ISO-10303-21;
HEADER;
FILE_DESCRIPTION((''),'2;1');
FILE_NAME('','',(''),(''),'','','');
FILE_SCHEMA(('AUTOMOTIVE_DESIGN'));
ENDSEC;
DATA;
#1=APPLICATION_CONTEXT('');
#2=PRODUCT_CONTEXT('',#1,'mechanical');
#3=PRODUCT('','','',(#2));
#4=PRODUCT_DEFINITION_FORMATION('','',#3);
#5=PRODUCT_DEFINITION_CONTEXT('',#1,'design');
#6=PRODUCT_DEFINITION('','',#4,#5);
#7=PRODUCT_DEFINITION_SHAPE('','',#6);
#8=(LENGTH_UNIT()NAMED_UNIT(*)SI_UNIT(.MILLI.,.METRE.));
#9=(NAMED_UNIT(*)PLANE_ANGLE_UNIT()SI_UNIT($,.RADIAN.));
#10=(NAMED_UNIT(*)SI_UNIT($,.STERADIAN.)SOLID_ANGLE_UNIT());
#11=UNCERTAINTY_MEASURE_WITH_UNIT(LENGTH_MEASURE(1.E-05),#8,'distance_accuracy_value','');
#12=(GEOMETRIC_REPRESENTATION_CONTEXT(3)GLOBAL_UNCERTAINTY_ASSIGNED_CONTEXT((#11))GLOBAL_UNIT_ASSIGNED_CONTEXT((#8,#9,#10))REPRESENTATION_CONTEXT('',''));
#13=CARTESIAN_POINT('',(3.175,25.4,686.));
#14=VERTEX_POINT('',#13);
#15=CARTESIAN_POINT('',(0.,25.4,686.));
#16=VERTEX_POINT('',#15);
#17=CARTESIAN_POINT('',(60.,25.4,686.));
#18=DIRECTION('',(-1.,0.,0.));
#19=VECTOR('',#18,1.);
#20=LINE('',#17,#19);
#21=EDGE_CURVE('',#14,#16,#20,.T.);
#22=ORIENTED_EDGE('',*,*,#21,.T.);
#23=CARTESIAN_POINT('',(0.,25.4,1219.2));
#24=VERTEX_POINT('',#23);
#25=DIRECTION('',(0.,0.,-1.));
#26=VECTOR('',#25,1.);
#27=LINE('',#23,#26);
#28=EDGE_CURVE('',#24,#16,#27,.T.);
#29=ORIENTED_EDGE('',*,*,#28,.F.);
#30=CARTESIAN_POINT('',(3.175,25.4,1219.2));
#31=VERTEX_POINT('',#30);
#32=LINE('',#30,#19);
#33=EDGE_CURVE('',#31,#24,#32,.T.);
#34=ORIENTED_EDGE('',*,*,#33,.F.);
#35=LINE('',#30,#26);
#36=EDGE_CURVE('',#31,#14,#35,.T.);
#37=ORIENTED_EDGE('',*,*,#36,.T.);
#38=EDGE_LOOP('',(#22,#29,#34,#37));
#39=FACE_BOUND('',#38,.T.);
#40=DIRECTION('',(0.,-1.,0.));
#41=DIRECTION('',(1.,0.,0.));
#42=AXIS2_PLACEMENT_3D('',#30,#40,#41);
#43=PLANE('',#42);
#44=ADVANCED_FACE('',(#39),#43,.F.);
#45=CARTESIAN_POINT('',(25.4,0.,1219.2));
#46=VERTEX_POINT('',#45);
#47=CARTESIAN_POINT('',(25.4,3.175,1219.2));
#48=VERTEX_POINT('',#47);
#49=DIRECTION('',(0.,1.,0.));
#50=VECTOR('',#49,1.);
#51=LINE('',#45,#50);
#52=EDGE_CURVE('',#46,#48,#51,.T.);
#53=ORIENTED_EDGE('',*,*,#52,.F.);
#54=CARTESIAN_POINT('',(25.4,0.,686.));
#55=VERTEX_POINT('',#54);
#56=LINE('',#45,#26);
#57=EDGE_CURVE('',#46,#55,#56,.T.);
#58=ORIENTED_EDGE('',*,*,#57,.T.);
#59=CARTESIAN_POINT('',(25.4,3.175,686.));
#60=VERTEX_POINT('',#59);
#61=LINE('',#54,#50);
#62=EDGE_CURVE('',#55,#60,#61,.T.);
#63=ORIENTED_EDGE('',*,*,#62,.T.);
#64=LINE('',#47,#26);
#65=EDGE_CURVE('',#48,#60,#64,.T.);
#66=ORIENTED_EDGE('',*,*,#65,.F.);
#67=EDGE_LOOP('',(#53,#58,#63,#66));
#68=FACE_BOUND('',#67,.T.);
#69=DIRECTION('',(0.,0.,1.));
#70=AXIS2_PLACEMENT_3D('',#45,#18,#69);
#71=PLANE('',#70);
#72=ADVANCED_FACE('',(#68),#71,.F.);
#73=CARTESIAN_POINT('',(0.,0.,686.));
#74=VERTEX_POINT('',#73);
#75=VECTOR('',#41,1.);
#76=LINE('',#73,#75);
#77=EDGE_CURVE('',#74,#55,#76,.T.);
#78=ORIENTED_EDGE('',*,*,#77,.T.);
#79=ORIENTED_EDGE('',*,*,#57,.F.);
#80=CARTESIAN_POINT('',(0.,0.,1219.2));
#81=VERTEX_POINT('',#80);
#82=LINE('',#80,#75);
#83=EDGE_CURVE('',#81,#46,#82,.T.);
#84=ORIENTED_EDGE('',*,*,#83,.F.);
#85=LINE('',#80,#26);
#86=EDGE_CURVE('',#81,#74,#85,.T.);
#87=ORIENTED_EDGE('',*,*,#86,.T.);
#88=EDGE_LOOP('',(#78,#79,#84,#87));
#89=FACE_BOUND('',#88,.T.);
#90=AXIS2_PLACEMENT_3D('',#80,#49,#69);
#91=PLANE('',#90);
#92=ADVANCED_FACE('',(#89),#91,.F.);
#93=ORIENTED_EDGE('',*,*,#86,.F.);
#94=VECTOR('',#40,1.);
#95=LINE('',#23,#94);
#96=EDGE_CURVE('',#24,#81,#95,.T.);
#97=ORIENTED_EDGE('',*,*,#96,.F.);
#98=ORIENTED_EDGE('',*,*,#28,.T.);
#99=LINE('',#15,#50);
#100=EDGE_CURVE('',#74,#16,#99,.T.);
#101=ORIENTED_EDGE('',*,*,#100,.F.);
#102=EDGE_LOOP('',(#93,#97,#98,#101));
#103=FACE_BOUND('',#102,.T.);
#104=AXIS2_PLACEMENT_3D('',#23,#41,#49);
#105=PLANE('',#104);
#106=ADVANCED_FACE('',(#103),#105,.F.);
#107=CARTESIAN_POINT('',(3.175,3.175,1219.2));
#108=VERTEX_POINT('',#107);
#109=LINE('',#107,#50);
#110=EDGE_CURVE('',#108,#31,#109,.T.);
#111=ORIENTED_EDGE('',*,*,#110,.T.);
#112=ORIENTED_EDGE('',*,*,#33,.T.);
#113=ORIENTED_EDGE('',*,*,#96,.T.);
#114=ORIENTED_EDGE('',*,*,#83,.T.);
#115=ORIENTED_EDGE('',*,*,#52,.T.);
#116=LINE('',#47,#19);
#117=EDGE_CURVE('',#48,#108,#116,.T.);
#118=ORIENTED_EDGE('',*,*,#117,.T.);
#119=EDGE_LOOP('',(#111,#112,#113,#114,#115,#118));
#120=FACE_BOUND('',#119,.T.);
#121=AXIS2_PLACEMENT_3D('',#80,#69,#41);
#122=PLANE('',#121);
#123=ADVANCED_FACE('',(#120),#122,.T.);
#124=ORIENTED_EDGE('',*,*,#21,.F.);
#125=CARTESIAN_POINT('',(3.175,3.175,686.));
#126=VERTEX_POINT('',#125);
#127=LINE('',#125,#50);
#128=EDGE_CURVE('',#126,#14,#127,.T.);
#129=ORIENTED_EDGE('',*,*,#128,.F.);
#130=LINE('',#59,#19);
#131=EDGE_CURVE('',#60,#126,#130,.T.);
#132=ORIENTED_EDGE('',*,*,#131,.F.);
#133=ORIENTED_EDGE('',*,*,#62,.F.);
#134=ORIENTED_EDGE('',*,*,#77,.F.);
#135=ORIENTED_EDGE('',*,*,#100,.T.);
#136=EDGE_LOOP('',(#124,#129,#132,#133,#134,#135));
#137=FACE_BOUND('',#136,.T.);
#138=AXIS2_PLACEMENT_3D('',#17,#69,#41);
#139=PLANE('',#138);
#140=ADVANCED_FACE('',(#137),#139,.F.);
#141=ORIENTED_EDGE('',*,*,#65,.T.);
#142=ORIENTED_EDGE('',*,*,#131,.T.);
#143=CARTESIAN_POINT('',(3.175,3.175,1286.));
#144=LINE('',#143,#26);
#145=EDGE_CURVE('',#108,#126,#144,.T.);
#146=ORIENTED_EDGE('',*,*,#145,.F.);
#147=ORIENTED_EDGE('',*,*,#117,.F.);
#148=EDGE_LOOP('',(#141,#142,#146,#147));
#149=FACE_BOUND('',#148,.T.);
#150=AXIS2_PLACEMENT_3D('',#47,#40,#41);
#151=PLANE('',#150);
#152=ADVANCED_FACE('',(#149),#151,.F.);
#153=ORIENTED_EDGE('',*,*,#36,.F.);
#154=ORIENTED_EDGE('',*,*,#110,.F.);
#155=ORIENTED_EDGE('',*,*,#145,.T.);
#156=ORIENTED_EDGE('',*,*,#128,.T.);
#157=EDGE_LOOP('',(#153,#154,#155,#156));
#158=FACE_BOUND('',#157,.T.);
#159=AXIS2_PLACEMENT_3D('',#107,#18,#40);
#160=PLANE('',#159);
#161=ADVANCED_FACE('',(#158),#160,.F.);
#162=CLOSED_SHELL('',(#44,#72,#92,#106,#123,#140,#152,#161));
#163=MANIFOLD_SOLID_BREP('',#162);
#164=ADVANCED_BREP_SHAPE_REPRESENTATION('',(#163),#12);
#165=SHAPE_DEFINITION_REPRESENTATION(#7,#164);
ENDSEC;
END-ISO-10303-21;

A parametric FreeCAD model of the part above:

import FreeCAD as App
import Part
import Sketcher

V = App.Vector
Q = App.Units.Quantity


def edges_at(feature, points):
    """Names of the edges that pass closest to the given points."""
    edges = feature.Shape.Edges
    near = lambda p: min(range(len(edges)), key=lambda i: edges[i].distToShape(Part.Vertex(*p))[0])
    return sorted({f"Edge{near(p) + 1}" for p in points})

doc = App.newDocument("Part")
body = doc.addObject("PartDesign::Body", "Body")

# Sketch on XY plane
sketch1 = body.newObject("Sketcher::SketchObject", "Sketch")
sketch1.AttachmentSupport = (doc.getObject("XY_Plane"), [""])
sketch1.MapMode = "FlatFace"
sketch1.addGeometry([
    Part.LineSegment(V(3.175, 25.4, 0), V(0, 25.4, 0)),  # 0
    Part.LineSegment(V(0, 25.4, 0), V(0, 0, 0)),  # 1
    Part.LineSegment(V(0, 0, 0), V(25.4, 0, 0)),  # 2
    Part.LineSegment(V(25.4, 0, 0), V(25.4, 3.175, 0)),  # 3
    Part.LineSegment(V(25.4, 3.175, 0), V(3.175, 3.175, 0)),  # 4
    Part.LineSegment(V(3.175, 3.175, 0), V(3.175, 25.4, 0)),  # 5
], False)
sketch1.addConstraint([
    Sketcher.Constraint("Coincident", 0, 2, 1, 1),
    Sketcher.Constraint("Coincident", 1, 2, 2, 1),
    Sketcher.Constraint("Coincident", 2, 2, 3, 1),
    Sketcher.Constraint("Coincident", 3, 2, 4, 1),
    Sketcher.Constraint("Coincident", 4, 2, 5, 1),
    Sketcher.Constraint("Coincident", 5, 2, 0, 1),
    Sketcher.Constraint("Horizontal", 0),
    Sketcher.Constraint("Vertical", 1),
    Sketcher.Constraint("Horizontal", 2),
    Sketcher.Constraint("Vertical", 3),
    Sketcher.Constraint("Horizontal", 4),
    Sketcher.Constraint("Vertical", 5),
    Sketcher.Constraint("Coincident", 1, 2, -1, 1),
    Sketcher.Constraint("Equal", 2, 1),
    Sketcher.Constraint("Equal", 0, 3),
    Sketcher.Constraint("DistanceX", 2, 1, 2, 2, Q("1 in")),
    Sketcher.Constraint("DistanceX", 0, 2, 0, 1, Q("0.125 in")),
])
pad1 = body.newObject("PartDesign::Pad", "Pad")
pad1.Profile = sketch1
pad1.Length = Q("96 in")
pad1.Midplane = True
doc.recompute()

fillet = body.newObject("PartDesign::Fillet", "Fillet")
fillet.Base = (pad1, edges_at(pad1, [(3.175, 3.175, 0)]))
fillet.Radius = Q("0.016 in")

# Sketch on YZ plane
sketch2 = body.newObject("Sketcher::SketchObject", "Sketch001")
sketch2.AttachmentSupport = (doc.getObject("YZ_Plane"), [""])
sketch2.MapMode = "FlatFace"
sketch2.addGeometry([
    Part.LineSegment(V(25.4, -1219.2, 0), V(-77.87852, -1219.2, 0)),
    Part.LineSegment(V(-77.87852, -1219.2, 0), V(-77.87852, 686, 0)),
    Part.LineSegment(V(-77.87852, 686, 0), V(25.4, 686, 0)),
    Part.LineSegment(V(25.4, 686, 0), V(25.4, -1219.2, 0)),
], False)
sketch2.addConstraint([
    Sketcher.Constraint("Coincident", 0, 2, 1, 1),
    Sketcher.Constraint("Coincident", 1, 2, 2, 1),
    Sketcher.Constraint("Coincident", 2, 2, 3, 1),
    Sketcher.Constraint("Coincident", 3, 2, 0, 1),
    Sketcher.Constraint("Horizontal", 0),
    Sketcher.Constraint("Vertical", 1),
    Sketcher.Constraint("Horizontal", 2),
    Sketcher.Constraint("Vertical", 3),
    Sketcher.Constraint("DistanceY", 0, 2, -1, 1, Q("48 in")),
    Sketcher.Constraint("DistanceX", -1, 1, 2, 2, Q("1 in")),
    Sketcher.Constraint("DistanceY", 1, 1, 1, 2, Q("1905.2 mm")),
    Sketcher.Constraint("DistanceX", 0, 2, 0, 1, Q("103.27852 mm")),
])
pocket1 = body.newObject("PartDesign::Pocket", "Pocket")
pocket1.Profile = sketch2
pocket1.Length = 60
pocket1.Reversed = True

# Sketch on XY plane
sketch3 = body.newObject("Sketcher::SketchObject", "Sketch002")
sketch3.AttachmentSupport = (doc.getObject("XY_Plane"), [""])
sketch3.MapMode = "FlatFace"
sketch3.AttachmentOffset = App.Placement(V(0, 0, 686), App.Rotation())
sketch3.addGeometry([
    Part.LineSegment(V(5.651991, 6.121858, 0), V(5.651991, 3.175, 0)),
    Part.LineSegment(V(5.651991, 3.175, 0), V(3.175, 3.175, 0)),
    Part.LineSegment(V(3.175, 3.175, 0), V(3.175, 6.121858, 0)),
    Part.LineSegment(V(3.175, 6.121858, 0), V(5.651991, 6.121858, 0)),
], False)
sketch3.addConstraint([
    Sketcher.Constraint("Coincident", 0, 2, 1, 1),
    Sketcher.Constraint("Coincident", 1, 2, 2, 1),
    Sketcher.Constraint("Coincident", 2, 2, 3, 1),
    Sketcher.Constraint("Coincident", 3, 2, 0, 1),
    Sketcher.Constraint("Vertical", 0),
    Sketcher.Constraint("Horizontal", 1),
    Sketcher.Constraint("Vertical", 2),
    Sketcher.Constraint("Horizontal", 3),
    Sketcher.Constraint("DistanceY", -1, 1, 0, 2, Q("0.125 in")),
    Sketcher.Constraint("DistanceX", -1, 1, 1, 2, Q("0.125 in")),
    Sketcher.Constraint("DistanceX", 1, 2, 1, 1, Q("2.476991 mm")),
    Sketcher.Constraint("DistanceY", 0, 2, 0, 1, Q("2.946858 mm")),
])
pocket2 = body.newObject("PartDesign::Pocket", "Pocket001")
pocket2.Profile = sketch3
pocket2.Length = 600
pocket2.Reversed = True

doc.recompute()
